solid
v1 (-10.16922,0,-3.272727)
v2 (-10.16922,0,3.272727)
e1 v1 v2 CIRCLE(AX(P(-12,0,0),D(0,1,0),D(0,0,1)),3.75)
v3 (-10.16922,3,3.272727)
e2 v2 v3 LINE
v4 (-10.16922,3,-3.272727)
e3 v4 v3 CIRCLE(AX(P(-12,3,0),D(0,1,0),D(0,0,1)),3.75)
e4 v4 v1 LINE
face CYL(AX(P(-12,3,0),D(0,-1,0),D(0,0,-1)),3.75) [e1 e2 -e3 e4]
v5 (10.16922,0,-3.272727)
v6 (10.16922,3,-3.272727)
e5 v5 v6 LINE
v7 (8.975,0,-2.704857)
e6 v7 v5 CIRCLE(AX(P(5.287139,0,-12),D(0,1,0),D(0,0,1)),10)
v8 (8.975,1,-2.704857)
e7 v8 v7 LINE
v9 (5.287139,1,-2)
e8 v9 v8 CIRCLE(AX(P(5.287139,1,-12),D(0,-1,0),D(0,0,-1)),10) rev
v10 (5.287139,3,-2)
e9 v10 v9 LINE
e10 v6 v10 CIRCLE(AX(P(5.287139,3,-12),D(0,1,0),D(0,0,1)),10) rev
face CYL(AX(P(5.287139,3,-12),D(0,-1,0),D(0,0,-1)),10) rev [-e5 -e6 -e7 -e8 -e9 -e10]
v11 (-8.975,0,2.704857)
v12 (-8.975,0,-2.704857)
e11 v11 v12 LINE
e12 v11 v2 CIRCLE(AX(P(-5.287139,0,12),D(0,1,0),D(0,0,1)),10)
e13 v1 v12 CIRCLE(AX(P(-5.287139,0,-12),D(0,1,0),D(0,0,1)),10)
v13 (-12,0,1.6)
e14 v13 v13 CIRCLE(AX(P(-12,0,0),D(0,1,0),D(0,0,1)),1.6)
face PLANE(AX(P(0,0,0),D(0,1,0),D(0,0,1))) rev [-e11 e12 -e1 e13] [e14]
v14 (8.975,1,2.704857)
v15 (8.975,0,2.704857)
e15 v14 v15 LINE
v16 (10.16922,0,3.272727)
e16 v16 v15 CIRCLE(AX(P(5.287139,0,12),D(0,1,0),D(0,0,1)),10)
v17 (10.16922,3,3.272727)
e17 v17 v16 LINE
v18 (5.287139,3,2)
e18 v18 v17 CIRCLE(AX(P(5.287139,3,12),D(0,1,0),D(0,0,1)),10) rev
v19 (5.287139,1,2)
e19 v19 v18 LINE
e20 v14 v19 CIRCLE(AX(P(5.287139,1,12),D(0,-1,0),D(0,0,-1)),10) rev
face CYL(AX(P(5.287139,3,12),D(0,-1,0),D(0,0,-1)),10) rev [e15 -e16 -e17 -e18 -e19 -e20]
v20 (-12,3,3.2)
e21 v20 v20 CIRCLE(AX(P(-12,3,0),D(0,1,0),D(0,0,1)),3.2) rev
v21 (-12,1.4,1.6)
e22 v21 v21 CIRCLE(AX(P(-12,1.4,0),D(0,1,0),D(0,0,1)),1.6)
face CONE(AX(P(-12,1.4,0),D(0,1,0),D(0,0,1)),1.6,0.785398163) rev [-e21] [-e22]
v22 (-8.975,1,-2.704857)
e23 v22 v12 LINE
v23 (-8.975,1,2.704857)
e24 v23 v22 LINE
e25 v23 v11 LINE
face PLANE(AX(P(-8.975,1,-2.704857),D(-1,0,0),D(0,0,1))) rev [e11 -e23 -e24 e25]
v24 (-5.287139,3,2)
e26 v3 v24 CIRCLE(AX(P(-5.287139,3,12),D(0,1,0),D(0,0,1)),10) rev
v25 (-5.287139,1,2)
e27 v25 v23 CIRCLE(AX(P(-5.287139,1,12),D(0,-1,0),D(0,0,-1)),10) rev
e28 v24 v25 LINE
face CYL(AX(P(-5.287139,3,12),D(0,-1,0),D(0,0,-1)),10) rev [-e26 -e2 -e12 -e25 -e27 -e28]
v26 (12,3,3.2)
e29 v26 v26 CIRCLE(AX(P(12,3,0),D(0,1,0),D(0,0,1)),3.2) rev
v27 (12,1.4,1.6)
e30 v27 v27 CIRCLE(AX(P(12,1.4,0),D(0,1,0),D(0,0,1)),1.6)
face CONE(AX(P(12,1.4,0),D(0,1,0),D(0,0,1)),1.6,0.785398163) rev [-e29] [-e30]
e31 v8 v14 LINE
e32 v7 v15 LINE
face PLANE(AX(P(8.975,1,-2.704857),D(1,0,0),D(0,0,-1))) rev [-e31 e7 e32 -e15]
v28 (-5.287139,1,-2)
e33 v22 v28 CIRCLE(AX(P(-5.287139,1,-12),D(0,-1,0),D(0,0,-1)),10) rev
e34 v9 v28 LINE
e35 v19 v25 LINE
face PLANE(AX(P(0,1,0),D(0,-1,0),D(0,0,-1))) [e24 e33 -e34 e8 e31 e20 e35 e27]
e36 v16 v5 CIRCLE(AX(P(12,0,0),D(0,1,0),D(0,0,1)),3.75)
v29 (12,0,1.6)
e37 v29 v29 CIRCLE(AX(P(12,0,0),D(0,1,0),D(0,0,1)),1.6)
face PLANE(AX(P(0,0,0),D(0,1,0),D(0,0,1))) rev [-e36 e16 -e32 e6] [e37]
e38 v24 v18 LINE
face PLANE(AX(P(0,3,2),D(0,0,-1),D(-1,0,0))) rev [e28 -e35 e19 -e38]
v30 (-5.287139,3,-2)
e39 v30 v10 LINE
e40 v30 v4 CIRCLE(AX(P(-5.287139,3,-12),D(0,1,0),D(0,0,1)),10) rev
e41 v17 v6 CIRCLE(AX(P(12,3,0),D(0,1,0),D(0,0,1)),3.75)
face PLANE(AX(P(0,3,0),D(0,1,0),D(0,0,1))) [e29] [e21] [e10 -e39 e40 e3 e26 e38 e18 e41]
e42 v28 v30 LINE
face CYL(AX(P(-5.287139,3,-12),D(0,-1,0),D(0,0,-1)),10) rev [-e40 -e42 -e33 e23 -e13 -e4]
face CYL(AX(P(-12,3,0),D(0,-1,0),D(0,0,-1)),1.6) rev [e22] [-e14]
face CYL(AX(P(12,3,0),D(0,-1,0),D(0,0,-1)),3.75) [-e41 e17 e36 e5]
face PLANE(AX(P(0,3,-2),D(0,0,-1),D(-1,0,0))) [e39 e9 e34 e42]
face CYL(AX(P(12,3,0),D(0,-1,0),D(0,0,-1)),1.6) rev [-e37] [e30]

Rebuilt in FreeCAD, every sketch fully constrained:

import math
import FreeCAD as App
import Part
import Sketcher
from FreeCAD import Vector
Q = App.Units.Quantity


def edges_at(feature, points):
    """Names of the edges that pass closest to the given points."""
    edges = feature.Shape.Edges
    near = lambda p: min(range(len(edges)), key=lambda i: edges[i].distToShape(Part.Vertex(*p))[0])
    return sorted({f"Edge{near(p) + 1}" for p in points})

doc = App.newDocument("Part")
params = doc.addObject("Spreadsheet::Sheet", "Params")
for row, (alias, value) in enumerate([
    ("sketch1_diameter", "3.2 mm"),
    ("sketch1_radius", "3.75 mm"),
    ("pad1_length", "3 mm"),
    ("chamfer_size", "1.6 mm"),
    ("fillet_radius", "10 mm"),
    ("sketch2_width", "17.95 mm"),
    ("pocket1_length", "1 mm"),
], start=1):
    params.set(f"A{row}", alias)
    params.set(f"B{row}", "=" + value)
    params.setAlias(f"B{row}", alias)

body = doc.addObject("PartDesign::Body", "Body")

# Sketch on XZ plane
sketch1 = doc.addObject("Sketcher::SketchObject", "Sketch")
body.addObject(sketch1)
sketch1.AttachmentSupport = (doc.XZ_Plane, [""])
sketch1.MapMode = "FlatFace"
sketch1.addGeometry([
    Part.LineSegment(Vector(8.827856, -2, 0), Vector(-8.827856, -2, 0)),  # 0
    Part.ArcOfCircle(Part.Circle(Vector(-12, 0, 0), Vector(0, 0, 1), 3.75), math.radians(32.230953), math.radians(327.769047)),  # 1
    Part.LineSegment(Vector(-8.827856, 2, 0), Vector(8.827856, 2, 0)),  # 2
    Part.ArcOfCircle(Part.Circle(Vector(12, 0, 0), Vector(0, 0, 1), 3.75), math.radians(-147.769047), math.radians(147.769047)),  # 3
    Part.Circle(Vector(-12, 0, 0), Vector(0, 0, 1), 1.6),  # 4
    Part.Circle(Vector(12, 0, 0), Vector(0, 0, 1), 1.6),  # 5
], False)
sketch1.addConstraint([
    Sketcher.Constraint("Coincident", 0, 2, 1, 2),
    Sketcher.Constraint("Coincident", 1, 1, 2, 1),
    Sketcher.Constraint("Coincident", 2, 2, 3, 2),
    Sketcher.Constraint("Coincident", 3, 1, 0, 1),
    Sketcher.Constraint("Horizontal", 0),
    Sketcher.Constraint("Horizontal", 2),
    Sketcher.Constraint("Coincident", 4, 3, 1, 3),
    Sketcher.Constraint("Coincident", 5, 3, 3, 3),
    Sketcher.Constraint("Equal", 1, 3),
    Sketcher.Constraint("Equal", 4, 5),
    Sketcher.Constraint("Symmetric", 1, 3, 3, 3, -1, 1),
    Sketcher.Constraint("Symmetric", 0, 2, 1, 1, -1),
    Sketcher.Constraint("Diameter", 4, Q("3.2 mm")),
    Sketcher.Constraint("Radius", 1, Q("3.75 mm")),
    Sketcher.Constraint("DistanceX", 1, 3, -1, 1, Q("12 mm")),
    Sketcher.Constraint("DistanceY", 0, 2, -1, 1, Q("2 mm")),
])
sketch1.setExpression("Constraints[12]", "Params.sketch1_diameter")
sketch1.setExpression("Constraints[13]", "Params.sketch1_radius")
pad1 = doc.addObject("PartDesign::Pad", "Pad")
body.addObject(pad1)
pad1.Profile = sketch1
pad1.setExpression("Length", "Params.pad1_length")
pad1.Reversed = True
doc.recompute()

chamfer = doc.addObject("PartDesign::Chamfer", "Chamfer")
body.addObject(chamfer)
chamfer.Base = (pad1, edges_at(pad1, [(12, 3, -1.6), (-12, 3, -1.6)]))
chamfer.setExpression("Size", "Params.chamfer_size")
doc.recompute()

fillet = doc.addObject("PartDesign::Fillet", "Fillet")
body.addObject(fillet)
fillet.Base = (chamfer, edges_at(chamfer, [
    (-8.828, 1.5, -2),
    (8.828, 1.5, -2),
    (8.828, 1.5, 2),
    (-8.828, 1.5, 2),
]))
fillet.setExpression("Radius", "Params.fillet_radius")

# Sketch on XZ plane
sketch2 = doc.addObject("Sketcher::SketchObject", "Sketch001")
body.addObject(sketch2)
sketch2.AttachmentSupport = (doc.XZ_Plane, [""])
sketch2.MapMode = "FlatFace"
sketch2.addGeometry([
    Part.LineSegment(Vector(8.975, -2.704857, 0), Vector(8.975, 2.704857, 0)),
    Part.LineSegment(Vector(8.975, 2.704857, 0), Vector(-8.975, 2.704857, 0)),
    Part.LineSegment(Vector(-8.975, 2.704857, 0), Vector(-8.975, -2.704857, 0)),
    Part.LineSegment(Vector(-8.975, -2.704857, 0), Vector(8.975, -2.704857, 0)),
], False)
sketch2.addConstraint([
    Sketcher.Constraint("Coincident", 0, 2, 1, 1),
    Sketcher.Constraint("Coincident", 1, 2, 2, 1),
    Sketcher.Constraint("Coincident", 2, 2, 3, 1),
    Sketcher.Constraint("Coincident", 3, 2, 0, 1),
    Sketcher.Constraint("Vertical", 0),
    Sketcher.Constraint("Horizontal", 1),
    Sketcher.Constraint("Vertical", 2),
    Sketcher.Constraint("Horizontal", 3),
    Sketcher.Constraint("Symmetric", 0, 2, 2, 2, -1, 1),
    Sketcher.Constraint("DistanceX", 1, 2, 1, 1, Q("17.95 mm")),
    Sketcher.Constraint("DistanceY", 0, 1, 0, 2, Q("5.409714 mm")),
])
sketch2.setExpression("Constraints[9]", "Params.sketch2_width")
pocket1 = doc.addObject("PartDesign::Pocket", "Pocket")
body.addObject(pocket1)
pocket1.Profile = sketch2
pocket1.setExpression("Length", "Params.pocket1_length")

doc.recompute()
